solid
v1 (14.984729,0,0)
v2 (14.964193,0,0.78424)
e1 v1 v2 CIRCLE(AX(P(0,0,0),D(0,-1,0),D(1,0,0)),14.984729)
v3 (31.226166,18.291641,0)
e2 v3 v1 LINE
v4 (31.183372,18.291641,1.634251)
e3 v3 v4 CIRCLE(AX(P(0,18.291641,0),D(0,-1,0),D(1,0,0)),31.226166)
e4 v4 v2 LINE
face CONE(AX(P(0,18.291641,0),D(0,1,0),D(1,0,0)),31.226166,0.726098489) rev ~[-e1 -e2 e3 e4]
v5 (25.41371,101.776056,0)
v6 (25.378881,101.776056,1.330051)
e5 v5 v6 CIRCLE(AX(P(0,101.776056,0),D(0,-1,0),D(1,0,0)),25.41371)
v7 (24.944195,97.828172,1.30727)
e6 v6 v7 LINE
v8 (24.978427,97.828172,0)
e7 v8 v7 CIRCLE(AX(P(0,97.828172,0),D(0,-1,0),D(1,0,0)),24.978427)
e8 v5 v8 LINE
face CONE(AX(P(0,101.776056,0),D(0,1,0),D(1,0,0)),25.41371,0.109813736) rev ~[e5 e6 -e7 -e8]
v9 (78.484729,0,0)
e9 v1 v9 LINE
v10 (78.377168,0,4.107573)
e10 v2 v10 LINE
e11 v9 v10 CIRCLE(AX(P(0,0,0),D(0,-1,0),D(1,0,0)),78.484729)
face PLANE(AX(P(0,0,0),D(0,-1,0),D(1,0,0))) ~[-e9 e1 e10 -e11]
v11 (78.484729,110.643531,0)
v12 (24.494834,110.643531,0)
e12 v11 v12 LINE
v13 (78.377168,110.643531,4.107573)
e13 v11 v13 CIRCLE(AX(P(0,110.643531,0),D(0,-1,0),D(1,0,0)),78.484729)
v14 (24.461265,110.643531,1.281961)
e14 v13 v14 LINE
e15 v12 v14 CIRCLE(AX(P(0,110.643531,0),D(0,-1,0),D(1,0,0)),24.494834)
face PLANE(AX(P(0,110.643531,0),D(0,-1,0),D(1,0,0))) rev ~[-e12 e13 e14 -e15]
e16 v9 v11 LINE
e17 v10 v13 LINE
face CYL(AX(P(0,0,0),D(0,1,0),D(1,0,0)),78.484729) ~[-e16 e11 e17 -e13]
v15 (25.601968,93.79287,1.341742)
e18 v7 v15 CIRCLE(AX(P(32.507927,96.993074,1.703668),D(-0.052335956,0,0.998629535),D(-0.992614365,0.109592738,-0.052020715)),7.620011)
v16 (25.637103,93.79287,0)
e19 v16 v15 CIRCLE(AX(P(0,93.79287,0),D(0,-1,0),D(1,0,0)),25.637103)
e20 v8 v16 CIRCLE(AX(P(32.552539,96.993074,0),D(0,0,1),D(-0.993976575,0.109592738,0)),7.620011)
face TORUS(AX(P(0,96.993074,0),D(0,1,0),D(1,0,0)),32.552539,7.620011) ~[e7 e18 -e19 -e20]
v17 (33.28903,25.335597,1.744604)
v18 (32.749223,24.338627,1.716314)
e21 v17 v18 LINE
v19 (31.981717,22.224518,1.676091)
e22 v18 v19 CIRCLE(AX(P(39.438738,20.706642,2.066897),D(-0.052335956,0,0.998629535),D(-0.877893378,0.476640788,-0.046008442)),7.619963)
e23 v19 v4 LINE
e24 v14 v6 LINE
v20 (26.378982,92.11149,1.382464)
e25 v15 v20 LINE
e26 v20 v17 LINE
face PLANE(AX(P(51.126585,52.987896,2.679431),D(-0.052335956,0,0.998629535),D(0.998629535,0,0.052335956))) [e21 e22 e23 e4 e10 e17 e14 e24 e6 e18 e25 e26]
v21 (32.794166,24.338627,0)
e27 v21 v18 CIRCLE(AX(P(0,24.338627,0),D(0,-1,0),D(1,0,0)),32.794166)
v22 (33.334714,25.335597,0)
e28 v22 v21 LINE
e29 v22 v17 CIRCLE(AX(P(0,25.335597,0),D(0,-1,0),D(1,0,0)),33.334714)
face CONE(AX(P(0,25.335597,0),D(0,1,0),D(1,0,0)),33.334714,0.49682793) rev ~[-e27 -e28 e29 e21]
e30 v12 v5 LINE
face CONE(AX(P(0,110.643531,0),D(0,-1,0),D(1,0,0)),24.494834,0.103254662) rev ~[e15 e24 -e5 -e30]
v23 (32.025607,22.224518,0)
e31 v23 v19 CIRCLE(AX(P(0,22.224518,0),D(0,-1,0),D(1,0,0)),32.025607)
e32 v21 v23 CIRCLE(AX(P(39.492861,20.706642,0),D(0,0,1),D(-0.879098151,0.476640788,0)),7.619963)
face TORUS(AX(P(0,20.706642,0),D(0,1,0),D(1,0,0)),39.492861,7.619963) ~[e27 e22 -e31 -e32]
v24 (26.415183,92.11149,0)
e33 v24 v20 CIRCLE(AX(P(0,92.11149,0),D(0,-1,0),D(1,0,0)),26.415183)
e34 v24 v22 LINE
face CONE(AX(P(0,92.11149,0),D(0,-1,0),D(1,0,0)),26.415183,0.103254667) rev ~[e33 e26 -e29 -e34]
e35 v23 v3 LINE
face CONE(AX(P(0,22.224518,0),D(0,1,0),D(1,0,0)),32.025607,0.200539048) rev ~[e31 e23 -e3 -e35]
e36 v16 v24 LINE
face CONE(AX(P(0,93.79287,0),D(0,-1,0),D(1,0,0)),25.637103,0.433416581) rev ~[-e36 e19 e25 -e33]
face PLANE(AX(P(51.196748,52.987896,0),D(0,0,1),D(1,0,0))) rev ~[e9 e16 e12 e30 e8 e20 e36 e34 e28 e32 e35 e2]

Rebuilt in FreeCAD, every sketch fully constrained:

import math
import FreeCAD as App
import Part
import Sketcher
from FreeCAD import Vector
Q = App.Units.Quantity

doc = App.newDocument("Part")
params = doc.addObject("Spreadsheet::Sheet", "Params")
for row, (alias, value) in enumerate([
    ("sketch1_width", "2.5 in"),
    ("revolution_angle", "3 deg"),
], start=1):
    params.set(f"A{row}", alias)
    params.set(f"B{row}", "=" + value)
    params.setAlias(f"B{row}", alias)

body = doc.addObject("PartDesign::Body", "Body")

sketch1 = body.newObject("Sketcher::SketchObject", "Sketch")
sketch1.AttachmentSupport = (doc.getObject("XY_Plane"), [""])
sketch1.MapMode = "FlatFace"
sketch1.addGeometry(Part.LineSegment(Vector(78.484729, 110.643531, 0), Vector(24.494834, 110.643531, 0)), False)
sketch1.addGeometry(Part.LineSegment(Vector(24.494834, 110.643531, 0), Vector(25.41371, 101.776056, 0)), False)
sketch1.addGeometry(Part.LineSegment(Vector(25.41371, 101.776056, 0), Vector(24.978427, 97.828172, 0)), False)
sketch1.addGeometry(Part.ArcOfCircle(Part.Circle(Vector(32.552539, 96.993074, 0), Vector(0, 0, 1), 7.620011), math.radians(173.708161), math.radians(204.832926)), False)
sketch1.addGeometry(Part.LineSegment(Vector(25.637103, 93.79287, 0), Vector(26.415183, 92.11149, 0)), False)
sketch1.addGeometry(Part.LineSegment(Vector(26.415183, 92.11149, 0), Vector(33.334714, 25.335597, 0)), False)
sketch1.addGeometry(Part.LineSegment(Vector(33.334714, 25.335597, 0), Vector(32.794166, 24.338627, 0)), False)
sketch1.addGeometry(Part.ArcOfCircle(Part.Circle(Vector(39.492861, 20.706642, 0), Vector(0, 0, 1), 7.619963), math.radians(151.533765), math.radians(168.509976)), False)
sketch1.addGeometry(Part.LineSegment(Vector(32.025607, 22.224518, 0), Vector(31.226166, 18.291641, 0)), False)
sketch1.addGeometry(Part.LineSegment(Vector(31.226166, 18.291641, 0), Vector(14.984729, 0, 0)), False)
sketch1.addGeometry(Part.LineSegment(Vector(14.984729, 0, 0), Vector(78.484729, 0, 0)), False)
sketch1.addGeometry(Part.LineSegment(Vector(78.484729, 0, 0), Vector(78.484729, 110.643531, 0)), False)
sketch1.addConstraint(Sketcher.Constraint("Coincident", 0, 2, 1, 1))
sketch1.addConstraint(Sketcher.Constraint("Coincident", 1, 2, 2, 1))
sketch1.addConstraint(Sketcher.Constraint("Tangent", 2, 2, 3, 1))
sketch1.addConstraint(Sketcher.Constraint("Tangent", 3, 2, 4, 1))
sketch1.addConstraint(Sketcher.Constraint("Coincident", 4, 2, 5, 1))
sketch1.addConstraint(Sketcher.Constraint("Coincident", 5, 2, 6, 1))
sketch1.addConstraint(Sketcher.Constraint("Tangent", 6, 2, 7, 1))
sketch1.addConstraint(Sketcher.Constraint("Tangent", 7, 2, 8, 1))
sketch1.addConstraint(Sketcher.Constraint("Coincident", 8, 2, 9, 1))
sketch1.addConstraint(Sketcher.Constraint("Coincident", 9, 2, 10, 1))
sketch1.addConstraint(Sketcher.Constraint("Coincident", 10, 2, 11, 1))
sketch1.addConstraint(Sketcher.Constraint("Coincident", 11, 2, 0, 1))
sketch1.addConstraint(Sketcher.Constraint("Horizontal", 0))
sketch1.addConstraint(Sketcher.Constraint("Horizontal", 10))
sketch1.addConstraint(Sketcher.Constraint("Vertical", 11))
sketch1.addConstraint(Sketcher.Constraint("PointOnObject", 9, 2, -1))
sketch1.addConstraint(Sketcher.Constraint("Parallel", 1, 5))
sketch1.addConstraint(Sketcher.Constraint("DistanceX", 10, 1, 10, 2, Q("2.5 in")))
sketch1.addConstraint(Sketcher.Constraint("Radius", 3, 7.620011))
sketch1.addConstraint(Sketcher.Constraint("Radius", 7, 7.619963))
sketch1.addConstraint(Sketcher.Constraint("DistanceY", 11, 1, 11, 2, 110.643531))
sketch1.addConstraint(Sketcher.Constraint("DistanceX", 8, 2, 6, 2, 1.568))
sketch1.addConstraint(Sketcher.Constraint("DistanceY", 8, 2, 7, 3, 2.415001))
sketch1.addConstraint(Sketcher.Constraint("Distance", 2, 3.971808))
sketch1.addConstraint(Sketcher.Constraint("Distance", 6, 1.134082))
sketch1.addConstraint(Sketcher.Constraint("Distance", 9, 24.46157))
sketch1.addConstraint(Sketcher.Constraint("DistanceX", 0, 2, 0, 1, 53.989895))
sketch1.addConstraint(Sketcher.Constraint("DistanceX", -1, 1, 3, 3, 32.552539))
sketch1.addConstraint(Sketcher.Constraint("DistanceX", -1, 1, 7, 3, 39.492861))
sketch1.addConstraint(Sketcher.Constraint("DistanceY", -1, 1, 7, 3, 20.706642))
sketch1.addConstraint(Sketcher.Constraint("DistanceX", -1, 1, 1, 2, 25.41371))
sketch1.addConstraint(Sketcher.Constraint("DistanceY", -1, 1, 2, 2, 97.828172))
sketch1.addConstraint(Sketcher.Constraint("DistanceY", -1, 1, 3, 2, 93.79287))
sketch1.addConstraint(Sketcher.Constraint("DistanceY", -1, 1, 4, 2, 92.11149))
sketch1.setExpression("Constraints[17]", "Params.sketch1_width")
revolution = body.newObject("PartDesign::Revolution", "Revolution")
revolution.Profile = sketch1
revolution.ReferenceAxis = (sketch1, ["V_Axis"])
revolution.setExpression("Angle", "Params.revolution_angle")
revolution.Reversed = True

doc.recompute()
